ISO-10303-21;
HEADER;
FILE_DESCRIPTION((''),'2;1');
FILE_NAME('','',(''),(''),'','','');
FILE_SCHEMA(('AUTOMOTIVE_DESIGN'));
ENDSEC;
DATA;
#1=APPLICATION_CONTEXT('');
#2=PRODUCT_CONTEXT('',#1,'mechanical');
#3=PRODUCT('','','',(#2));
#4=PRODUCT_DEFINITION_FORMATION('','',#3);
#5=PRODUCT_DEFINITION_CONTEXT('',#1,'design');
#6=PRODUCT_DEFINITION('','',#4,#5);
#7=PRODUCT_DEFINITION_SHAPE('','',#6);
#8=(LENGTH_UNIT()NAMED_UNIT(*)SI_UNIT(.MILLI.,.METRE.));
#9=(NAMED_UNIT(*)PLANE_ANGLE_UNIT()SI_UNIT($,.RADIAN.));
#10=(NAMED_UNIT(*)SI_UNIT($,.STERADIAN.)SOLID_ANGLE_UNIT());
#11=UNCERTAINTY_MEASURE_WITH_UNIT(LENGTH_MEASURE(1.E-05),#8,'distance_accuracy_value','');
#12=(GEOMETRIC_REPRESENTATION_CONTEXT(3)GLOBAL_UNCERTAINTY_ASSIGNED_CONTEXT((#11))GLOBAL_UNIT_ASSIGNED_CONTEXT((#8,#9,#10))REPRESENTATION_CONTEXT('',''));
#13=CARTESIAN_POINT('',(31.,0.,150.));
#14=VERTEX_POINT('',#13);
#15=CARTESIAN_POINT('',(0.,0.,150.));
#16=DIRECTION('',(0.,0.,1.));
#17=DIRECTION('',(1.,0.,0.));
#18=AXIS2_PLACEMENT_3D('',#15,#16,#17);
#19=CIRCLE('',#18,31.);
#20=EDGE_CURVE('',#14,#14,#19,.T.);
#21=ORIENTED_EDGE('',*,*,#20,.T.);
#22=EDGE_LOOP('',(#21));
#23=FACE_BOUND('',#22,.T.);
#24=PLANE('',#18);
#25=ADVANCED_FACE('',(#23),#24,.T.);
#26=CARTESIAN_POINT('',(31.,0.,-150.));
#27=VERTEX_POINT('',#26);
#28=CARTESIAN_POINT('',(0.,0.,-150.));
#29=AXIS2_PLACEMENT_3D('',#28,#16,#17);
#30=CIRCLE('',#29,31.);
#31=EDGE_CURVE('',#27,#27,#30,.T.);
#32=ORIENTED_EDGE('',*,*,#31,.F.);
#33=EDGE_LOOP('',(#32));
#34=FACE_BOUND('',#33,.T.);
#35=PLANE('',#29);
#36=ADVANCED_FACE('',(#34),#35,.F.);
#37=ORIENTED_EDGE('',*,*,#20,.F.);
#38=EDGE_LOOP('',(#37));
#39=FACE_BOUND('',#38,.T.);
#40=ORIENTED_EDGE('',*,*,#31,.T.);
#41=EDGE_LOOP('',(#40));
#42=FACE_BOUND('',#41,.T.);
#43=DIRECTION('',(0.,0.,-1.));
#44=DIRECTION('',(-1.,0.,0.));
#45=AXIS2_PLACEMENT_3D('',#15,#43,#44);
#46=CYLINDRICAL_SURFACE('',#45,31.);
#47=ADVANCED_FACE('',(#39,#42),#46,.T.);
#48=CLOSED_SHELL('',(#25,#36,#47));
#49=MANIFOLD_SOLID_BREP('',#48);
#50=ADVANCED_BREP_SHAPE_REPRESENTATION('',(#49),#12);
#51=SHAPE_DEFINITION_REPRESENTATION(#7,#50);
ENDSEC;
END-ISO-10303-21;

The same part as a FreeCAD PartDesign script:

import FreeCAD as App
import Part
import Sketcher

doc = App.newDocument("Part")
params = doc.addObject("Spreadsheet::Sheet", "Params")
for row, (alias, value) in enumerate([
    ("sketch1_diameter", "62 mm"),
    ("pad1_length", "300 mm"),
], start=1):
    params.set(f"A{row}", alias)
    params.set(f"B{row}", "=" + value)
    params.setAlias(f"B{row}", alias)

body = doc.addObject("PartDesign::Body", "Body")

sketch1 = doc.addObject("Sketcher::SketchObject", "Sketch")
body.addObject(sketch1)
sketch1.AttachmentSupport = (doc.XY_Plane, [""])
sketch1.MapMode = "FlatFace"
sketch1.addGeometry(Part.Circle(App.Vector(0, 0, 0), App.Vector(0, 0, 1), 31), False)
sketch1.addConstraint([
    Sketcher.Constraint("Coincident", 0, 3, -1, 1),
    Sketcher.Constraint("Diameter", 0, 62.0),
])
sketch1.setExpression("Constraints[1]", "Params.sketch1_diameter")
pad1 = doc.addObject("PartDesign::Pad", "Pad")
body.addObject(pad1)
pad1.Profile = sketch1
pad1.setExpression("Length", "Params.pad1_length")
pad1.Midplane = True

doc.recompute()
